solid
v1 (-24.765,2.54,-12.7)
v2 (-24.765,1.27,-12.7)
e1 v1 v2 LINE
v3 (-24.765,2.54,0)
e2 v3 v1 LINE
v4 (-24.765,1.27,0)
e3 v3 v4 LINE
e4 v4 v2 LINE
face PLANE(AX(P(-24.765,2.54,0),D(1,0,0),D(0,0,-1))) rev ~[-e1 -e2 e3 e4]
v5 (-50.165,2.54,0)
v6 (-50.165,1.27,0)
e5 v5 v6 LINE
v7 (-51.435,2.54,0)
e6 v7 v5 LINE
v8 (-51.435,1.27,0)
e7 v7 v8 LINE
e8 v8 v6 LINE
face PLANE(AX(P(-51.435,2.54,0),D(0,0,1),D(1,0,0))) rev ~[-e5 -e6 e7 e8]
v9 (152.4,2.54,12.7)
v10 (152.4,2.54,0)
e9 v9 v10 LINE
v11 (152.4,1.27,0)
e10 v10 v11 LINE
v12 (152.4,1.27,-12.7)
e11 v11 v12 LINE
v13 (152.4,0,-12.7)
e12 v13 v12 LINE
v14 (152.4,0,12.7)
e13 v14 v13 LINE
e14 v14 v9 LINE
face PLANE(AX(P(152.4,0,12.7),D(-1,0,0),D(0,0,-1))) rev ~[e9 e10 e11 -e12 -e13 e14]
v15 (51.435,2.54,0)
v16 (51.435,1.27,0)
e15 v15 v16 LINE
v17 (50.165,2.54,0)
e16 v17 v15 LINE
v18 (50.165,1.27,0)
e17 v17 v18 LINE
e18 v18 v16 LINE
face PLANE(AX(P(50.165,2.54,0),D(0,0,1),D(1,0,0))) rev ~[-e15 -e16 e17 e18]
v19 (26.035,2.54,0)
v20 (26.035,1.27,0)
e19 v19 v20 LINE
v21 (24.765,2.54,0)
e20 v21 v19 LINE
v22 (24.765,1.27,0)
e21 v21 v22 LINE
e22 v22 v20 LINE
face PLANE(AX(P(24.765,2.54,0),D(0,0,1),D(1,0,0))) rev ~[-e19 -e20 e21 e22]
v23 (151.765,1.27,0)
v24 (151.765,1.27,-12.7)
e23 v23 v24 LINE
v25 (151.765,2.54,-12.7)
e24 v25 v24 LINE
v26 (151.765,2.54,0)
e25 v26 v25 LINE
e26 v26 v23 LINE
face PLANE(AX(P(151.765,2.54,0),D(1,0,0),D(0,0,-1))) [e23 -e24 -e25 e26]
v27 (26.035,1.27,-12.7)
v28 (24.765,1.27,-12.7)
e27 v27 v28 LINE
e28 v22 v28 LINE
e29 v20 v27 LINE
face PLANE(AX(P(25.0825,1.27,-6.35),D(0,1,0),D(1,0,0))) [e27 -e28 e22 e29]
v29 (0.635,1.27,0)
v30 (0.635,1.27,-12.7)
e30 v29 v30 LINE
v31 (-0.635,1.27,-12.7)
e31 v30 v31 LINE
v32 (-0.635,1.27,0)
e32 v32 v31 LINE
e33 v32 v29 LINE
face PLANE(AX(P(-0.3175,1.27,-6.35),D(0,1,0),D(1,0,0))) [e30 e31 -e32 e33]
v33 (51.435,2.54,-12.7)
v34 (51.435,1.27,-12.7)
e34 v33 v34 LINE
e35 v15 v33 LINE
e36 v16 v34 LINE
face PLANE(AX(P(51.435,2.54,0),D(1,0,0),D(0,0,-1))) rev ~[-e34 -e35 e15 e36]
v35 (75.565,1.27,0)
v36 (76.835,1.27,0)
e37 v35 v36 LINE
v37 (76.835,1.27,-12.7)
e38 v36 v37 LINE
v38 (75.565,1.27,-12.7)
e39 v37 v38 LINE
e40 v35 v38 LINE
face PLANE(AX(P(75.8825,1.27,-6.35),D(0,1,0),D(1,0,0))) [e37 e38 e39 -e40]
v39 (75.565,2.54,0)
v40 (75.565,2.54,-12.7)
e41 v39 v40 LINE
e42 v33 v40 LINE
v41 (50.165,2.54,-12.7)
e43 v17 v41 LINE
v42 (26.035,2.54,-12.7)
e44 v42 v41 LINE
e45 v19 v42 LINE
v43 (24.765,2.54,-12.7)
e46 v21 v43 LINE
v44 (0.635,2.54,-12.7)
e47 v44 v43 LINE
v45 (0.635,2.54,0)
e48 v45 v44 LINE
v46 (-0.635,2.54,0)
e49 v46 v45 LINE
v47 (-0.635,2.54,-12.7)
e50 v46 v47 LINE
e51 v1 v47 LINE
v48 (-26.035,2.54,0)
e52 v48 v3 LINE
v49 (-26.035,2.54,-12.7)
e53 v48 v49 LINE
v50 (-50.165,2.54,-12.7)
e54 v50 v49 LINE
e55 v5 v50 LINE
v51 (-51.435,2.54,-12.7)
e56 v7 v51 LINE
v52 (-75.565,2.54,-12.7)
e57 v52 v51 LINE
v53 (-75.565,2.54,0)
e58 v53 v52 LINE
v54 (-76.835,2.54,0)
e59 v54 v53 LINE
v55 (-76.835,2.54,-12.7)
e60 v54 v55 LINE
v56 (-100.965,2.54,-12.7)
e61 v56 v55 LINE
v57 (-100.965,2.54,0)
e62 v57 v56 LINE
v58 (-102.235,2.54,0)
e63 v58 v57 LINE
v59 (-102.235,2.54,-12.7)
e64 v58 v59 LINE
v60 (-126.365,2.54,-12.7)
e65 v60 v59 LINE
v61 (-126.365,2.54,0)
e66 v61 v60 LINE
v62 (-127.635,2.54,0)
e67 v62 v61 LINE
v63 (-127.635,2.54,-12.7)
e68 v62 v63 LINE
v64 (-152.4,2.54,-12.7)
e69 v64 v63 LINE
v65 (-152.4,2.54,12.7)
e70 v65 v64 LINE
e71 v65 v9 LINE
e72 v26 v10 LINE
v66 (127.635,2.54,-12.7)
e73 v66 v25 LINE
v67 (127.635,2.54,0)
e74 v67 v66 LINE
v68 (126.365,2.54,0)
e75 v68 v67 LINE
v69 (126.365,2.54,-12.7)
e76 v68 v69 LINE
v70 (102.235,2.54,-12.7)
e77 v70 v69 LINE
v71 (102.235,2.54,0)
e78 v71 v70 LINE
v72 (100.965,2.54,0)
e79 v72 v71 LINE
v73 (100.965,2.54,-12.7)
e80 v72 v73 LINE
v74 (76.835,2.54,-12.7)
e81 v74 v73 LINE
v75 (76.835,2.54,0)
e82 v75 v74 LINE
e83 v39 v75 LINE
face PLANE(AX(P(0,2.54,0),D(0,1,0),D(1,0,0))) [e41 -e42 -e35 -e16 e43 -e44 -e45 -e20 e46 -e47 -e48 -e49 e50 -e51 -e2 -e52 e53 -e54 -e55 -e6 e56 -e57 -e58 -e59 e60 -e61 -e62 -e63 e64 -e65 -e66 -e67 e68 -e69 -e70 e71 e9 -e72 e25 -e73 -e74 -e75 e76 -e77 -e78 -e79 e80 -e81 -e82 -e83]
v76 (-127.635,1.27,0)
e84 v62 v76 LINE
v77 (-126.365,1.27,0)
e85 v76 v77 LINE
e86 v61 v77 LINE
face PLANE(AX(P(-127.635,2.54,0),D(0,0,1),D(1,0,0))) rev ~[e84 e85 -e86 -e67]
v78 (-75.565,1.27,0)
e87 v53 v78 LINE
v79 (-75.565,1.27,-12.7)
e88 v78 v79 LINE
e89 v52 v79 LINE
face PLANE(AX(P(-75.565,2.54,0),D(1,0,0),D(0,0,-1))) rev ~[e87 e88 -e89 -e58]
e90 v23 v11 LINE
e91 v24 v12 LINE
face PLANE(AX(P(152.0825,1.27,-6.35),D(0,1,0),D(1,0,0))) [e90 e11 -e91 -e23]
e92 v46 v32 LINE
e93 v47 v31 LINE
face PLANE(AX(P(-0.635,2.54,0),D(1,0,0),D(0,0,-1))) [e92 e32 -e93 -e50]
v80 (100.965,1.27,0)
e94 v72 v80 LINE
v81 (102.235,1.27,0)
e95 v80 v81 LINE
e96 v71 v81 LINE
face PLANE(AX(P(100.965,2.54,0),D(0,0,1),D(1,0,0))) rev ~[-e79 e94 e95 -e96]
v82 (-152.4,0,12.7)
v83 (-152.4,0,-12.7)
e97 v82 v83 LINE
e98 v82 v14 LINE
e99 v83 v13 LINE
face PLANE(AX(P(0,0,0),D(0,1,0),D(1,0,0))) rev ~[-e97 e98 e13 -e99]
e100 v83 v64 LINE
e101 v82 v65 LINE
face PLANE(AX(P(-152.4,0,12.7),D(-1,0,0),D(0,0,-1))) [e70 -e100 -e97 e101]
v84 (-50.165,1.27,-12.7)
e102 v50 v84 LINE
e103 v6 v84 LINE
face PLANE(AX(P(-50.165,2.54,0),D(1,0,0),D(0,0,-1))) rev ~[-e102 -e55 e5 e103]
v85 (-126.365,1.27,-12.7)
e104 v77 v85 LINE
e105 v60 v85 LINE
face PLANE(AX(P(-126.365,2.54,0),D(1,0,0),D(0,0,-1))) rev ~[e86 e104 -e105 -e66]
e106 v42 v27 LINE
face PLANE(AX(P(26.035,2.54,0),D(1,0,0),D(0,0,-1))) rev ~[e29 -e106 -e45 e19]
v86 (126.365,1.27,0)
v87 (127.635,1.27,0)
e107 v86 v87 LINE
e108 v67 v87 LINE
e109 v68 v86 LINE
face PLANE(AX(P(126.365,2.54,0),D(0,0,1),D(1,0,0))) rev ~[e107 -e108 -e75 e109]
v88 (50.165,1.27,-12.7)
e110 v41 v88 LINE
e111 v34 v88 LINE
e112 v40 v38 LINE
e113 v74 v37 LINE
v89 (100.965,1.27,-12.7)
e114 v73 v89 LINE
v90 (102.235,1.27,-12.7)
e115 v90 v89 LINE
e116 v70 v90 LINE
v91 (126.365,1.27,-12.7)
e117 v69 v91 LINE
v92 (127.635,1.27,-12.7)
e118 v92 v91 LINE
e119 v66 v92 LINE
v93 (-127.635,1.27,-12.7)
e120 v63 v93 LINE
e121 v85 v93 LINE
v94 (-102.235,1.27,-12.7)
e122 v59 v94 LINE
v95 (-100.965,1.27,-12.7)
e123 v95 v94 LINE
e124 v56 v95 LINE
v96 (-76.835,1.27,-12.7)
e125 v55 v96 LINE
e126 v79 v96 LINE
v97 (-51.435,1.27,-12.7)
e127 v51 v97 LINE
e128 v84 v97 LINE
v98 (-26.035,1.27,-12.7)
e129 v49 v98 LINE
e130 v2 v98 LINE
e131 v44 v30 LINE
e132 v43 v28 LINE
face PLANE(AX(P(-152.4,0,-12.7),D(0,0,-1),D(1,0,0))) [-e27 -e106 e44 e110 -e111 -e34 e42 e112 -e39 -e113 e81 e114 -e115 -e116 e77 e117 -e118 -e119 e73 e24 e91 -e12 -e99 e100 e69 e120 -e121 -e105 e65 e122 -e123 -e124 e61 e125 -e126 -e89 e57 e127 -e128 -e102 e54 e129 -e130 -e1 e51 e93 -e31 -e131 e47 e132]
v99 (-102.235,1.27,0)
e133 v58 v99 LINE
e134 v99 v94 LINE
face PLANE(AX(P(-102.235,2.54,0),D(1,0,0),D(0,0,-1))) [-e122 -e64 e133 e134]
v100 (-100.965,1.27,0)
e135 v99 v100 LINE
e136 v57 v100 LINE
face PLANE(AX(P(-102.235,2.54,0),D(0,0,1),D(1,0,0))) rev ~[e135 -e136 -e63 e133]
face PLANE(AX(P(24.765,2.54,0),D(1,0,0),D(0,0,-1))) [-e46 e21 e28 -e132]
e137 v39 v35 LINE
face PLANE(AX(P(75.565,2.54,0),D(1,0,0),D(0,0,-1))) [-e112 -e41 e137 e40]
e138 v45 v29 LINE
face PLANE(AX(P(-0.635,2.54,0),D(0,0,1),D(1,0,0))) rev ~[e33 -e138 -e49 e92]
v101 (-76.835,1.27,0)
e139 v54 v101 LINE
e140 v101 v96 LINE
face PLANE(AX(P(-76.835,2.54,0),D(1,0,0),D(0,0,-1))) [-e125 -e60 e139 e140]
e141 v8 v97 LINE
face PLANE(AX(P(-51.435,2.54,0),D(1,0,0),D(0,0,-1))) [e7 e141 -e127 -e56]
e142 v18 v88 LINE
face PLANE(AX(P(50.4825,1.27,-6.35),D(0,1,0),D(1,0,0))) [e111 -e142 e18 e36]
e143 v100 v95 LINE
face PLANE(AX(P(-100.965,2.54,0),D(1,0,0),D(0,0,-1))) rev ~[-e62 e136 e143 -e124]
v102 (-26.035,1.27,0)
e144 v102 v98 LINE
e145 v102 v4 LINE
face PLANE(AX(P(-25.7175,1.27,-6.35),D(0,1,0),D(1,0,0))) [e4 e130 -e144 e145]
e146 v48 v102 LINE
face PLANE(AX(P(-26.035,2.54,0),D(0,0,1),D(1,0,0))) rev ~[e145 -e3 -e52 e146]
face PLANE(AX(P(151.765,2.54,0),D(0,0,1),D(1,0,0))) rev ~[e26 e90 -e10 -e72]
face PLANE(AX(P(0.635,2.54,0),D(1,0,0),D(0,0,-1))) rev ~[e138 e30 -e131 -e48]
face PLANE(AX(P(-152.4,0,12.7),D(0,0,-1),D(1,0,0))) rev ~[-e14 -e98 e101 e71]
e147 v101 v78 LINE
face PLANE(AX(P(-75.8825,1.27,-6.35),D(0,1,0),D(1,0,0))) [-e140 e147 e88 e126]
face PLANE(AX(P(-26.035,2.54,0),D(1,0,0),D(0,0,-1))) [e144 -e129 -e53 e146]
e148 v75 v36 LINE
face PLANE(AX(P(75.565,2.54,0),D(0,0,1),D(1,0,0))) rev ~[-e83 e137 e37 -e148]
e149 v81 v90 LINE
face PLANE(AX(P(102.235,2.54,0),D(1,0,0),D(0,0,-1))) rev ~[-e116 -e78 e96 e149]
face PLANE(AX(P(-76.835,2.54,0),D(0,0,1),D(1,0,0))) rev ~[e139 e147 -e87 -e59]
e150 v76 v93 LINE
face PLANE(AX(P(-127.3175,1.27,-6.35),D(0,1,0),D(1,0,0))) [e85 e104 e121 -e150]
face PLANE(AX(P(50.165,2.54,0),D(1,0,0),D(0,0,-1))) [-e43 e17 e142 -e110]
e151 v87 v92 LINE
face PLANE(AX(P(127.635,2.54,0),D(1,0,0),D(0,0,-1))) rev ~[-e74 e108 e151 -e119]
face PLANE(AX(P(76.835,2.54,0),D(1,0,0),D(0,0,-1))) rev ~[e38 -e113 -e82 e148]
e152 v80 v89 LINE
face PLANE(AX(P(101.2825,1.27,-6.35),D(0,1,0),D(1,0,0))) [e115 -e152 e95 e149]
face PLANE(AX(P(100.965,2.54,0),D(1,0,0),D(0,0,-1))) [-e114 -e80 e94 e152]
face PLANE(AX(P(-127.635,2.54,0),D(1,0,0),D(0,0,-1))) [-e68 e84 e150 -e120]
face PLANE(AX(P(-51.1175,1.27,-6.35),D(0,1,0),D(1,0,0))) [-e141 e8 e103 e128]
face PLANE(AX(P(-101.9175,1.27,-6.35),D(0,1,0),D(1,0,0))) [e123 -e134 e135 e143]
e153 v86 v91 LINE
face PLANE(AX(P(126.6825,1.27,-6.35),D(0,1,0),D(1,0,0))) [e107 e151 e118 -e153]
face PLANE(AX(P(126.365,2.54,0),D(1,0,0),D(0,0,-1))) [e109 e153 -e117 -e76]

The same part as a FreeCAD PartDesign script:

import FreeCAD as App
import Part
import Sketcher
from FreeCAD import Vector
Q = App.Units.Quantity

doc = App.newDocument("Part")
params = doc.addObject("Spreadsheet::Sheet", "Params")
for row, (alias, value) in enumerate([
    ("sketch1_width", "12 in"),
    ("sketch1_height", "1 in"),
    ("pad1_length", "0.1 in"),
    ("sketch2_height", "0.5 in"),
    ("sketch2_width", "0.05 in"),
    ("pocket1_length", "0.05 in"),
], start=1):
    params.set(f"A{row}", alias)
    params.set(f"B{row}", "=" + value)
    params.setAlias(f"B{row}", alias)

body = doc.addObject("PartDesign::Body", "Body")

# Sketch on XZ plane
sketch1 = body.newObject("Sketcher::SketchObject", "Sketch")
sketch1.AttachmentSupport = (doc.getObject("XZ_Plane"), [""])
sketch1.MapMode = "FlatFace"
sketch1.addGeometry([
    Part.LineSegment(Vector(-152, -13, 0), Vector(-152, 13, 0)),
    Part.LineSegment(Vector(-152, 13, 0), Vector(152, 13, 0)),
    Part.LineSegment(Vector(152, 13, 0), Vector(152, -13, 0)),
    Part.LineSegment(Vector(152, -13, 0), Vector(-152, -13, 0)),
], False)
sketch1.addConstraint([
    Sketcher.Constraint("Coincident", 0, 2, 1, 1),
    Sketcher.Constraint("Coincident", 1, 2, 2, 1),
    Sketcher.Constraint("Coincident", 2, 2, 3, 1),
    Sketcher.Constraint("Coincident", 3, 2, 0, 1),
    Sketcher.Constraint("Vertical", 0),
    Sketcher.Constraint("Horizontal", 1),
    Sketcher.Constraint("Vertical", 2),
    Sketcher.Constraint("Horizontal", 3),
    Sketcher.Constraint("Symmetric", 0, 2, 2, 2, -1, 1),
    Sketcher.Constraint("DistanceX", 1, 1, 1, 2, Q("12 in")),
    Sketcher.Constraint("DistanceY", 0, 1, 0, 2, Q("1 in")),
])
sketch1.setExpression("Constraints[9]", "Params.sketch1_width")
sketch1.setExpression("Constraints[10]", "Params.sketch1_height")
pad1 = body.newObject("PartDesign::Pad", "Pad")
pad1.Profile = sketch1
pad1.setExpression("Length", "Params.pad1_length")
pad1.Reversed = True

# Sketch on XZ plane
sketch2 = body.newObject("Sketcher::SketchObject", "Sketch001")
sketch2.AttachmentSupport = (doc.getObject("XZ_Plane"), [""])
sketch2.MapMode = "FlatFace"
sketch2.AttachmentOffset = App.Placement(Vector(0, 0, -0.1 * 25.4), App.Rotation())
sketch2.addGeometry([
    Part.LineSegment(Vector(-127.6, -12.7, 0), Vector(-127.6, 0, 0)),  # 0
    Part.LineSegment(Vector(-127.6, 0, 0), Vector(-126.4, 0, 0)),  # 1
    Part.LineSegment(Vector(-126.4, 0, 0), Vector(-126.4, -12.7, 0)),  # 2
    Part.LineSegment(Vector(-126.4, -12.7, 0), Vector(-127.6, -12.7, 0)),  # 3
    Part.LineSegment(Vector(-102.2, -12.7, 0), Vector(-102.2, 0, 0)),  # 4
    Part.LineSegment(Vector(-102.2, 0, 0), Vector(-101, 0, 0)),  # 5
    Part.LineSegment(Vector(-101, 0, 0), Vector(-101, -12.7, 0)),  # 6
    Part.LineSegment(Vector(-101, -12.7, 0), Vector(-102.2, -12.7, 0)),  # 7
    Part.LineSegment(Vector(-75.6, 0, 0), Vector(-75.6, -12.7, 0)),  # 8
    Part.LineSegment(Vector(-75.6, -12.7, 0), Vector(-76.8, -12.7, 0)),  # 9
    Part.LineSegment(Vector(-76.8, -12.7, 0), Vector(-76.8, 0, 0)),  # 10
    Part.LineSegment(Vector(-76.8, 0, 0), Vector(-75.6, 0, 0)),  # 11
    Part.LineSegment(Vector(-51.4, -12.7, 0), Vector(-51.4, 0, 0)),  # 12
    Part.LineSegment(Vector(-51.4, 0, 0), Vector(-50.2, 0, 0)),  # 13
    Part.LineSegment(Vector(-50.2, 0, 0), Vector(-50.2, -12.7, 0)),  # 14
    Part.LineSegment(Vector(-50.2, -12.7, 0), Vector(-51.4, -12.7, 0)),  # 15
    Part.LineSegment(Vector(-26, -12.7, 0), Vector(-26, 0, 0)),  # 16
    Part.LineSegment(Vector(-26, 0, 0), Vector(-24.8, 0, 0)),  # 17
    Part.LineSegment(Vector(-24.8, 0, 0), Vector(-24.8, -12.7, 0)),  # 18
    Part.LineSegment(Vector(-24.8, -12.7, 0), Vector(-26, -12.7, 0)),  # 19
    Part.LineSegment(Vector(-0.6, -12.7, 0), Vector(-0.6, 0, 0)),  # 20
    Part.LineSegment(Vector(-0.6, 0, 0), Vector(0.6, 0, 0)),  # 21
    Part.LineSegment(Vector(0.6, 0, 0), Vector(0.6, -12.7, 0)),  # 22
    Part.LineSegment(Vector(0.6, -12.7, 0), Vector(-0.6, -12.7, 0)),  # 23
    Part.LineSegment(Vector(24.8, -12.7, 0), Vector(24.8, 0, 0)),  # 24
    Part.LineSegment(Vector(24.8, 0, 0), Vector(26, 0, 0)),  # 25
    Part.LineSegment(Vector(26, 0, 0), Vector(26, -12.7, 0)),  # 26
    Part.LineSegment(Vector(26, -12.7, 0), Vector(24.8, -12.7, 0)),  # 27
    Part.LineSegment(Vector(50.2, -12.7, 0), Vector(50.2, 0, 0)),  # 28
    Part.LineSegment(Vector(50.2, 0, 0), Vector(51.4, 0, 0)),  # 29
    Part.LineSegment(Vector(51.4, 0, 0), Vector(51.4, -12.7, 0)),  # 30
    Part.LineSegment(Vector(51.4, -12.7, 0), Vector(50.2, -12.7, 0)),  # 31
    Part.LineSegment(Vector(75.6, -12.7, 0), Vector(75.6, 0, 0)),  # 32
    Part.LineSegment(Vector(75.6, 0, 0), Vector(76.8, 0, 0)),  # 33
    Part.LineSegment(Vector(76.8, 0, 0), Vector(76.8, -12.7, 0)),  # 34
    Part.LineSegment(Vector(76.8, -12.7, 0), Vector(75.6, -12.7, 0)),  # 35
    Part.LineSegment(Vector(101, -12.7, 0), Vector(101, 0, 0)),  # 36
    Part.LineSegment(Vector(101, 0, 0), Vector(102.2, 0, 0)),  # 37
    Part.LineSegment(Vector(102.2, 0, 0), Vector(102.2, -12.7, 0)),  # 38
    Part.LineSegment(Vector(102.2, -12.7, 0), Vector(101, -12.7, 0)),  # 39
    Part.LineSegment(Vector(126.4, -12.7, 0), Vector(126.4, 0, 0)),  # 40
    Part.LineSegment(Vector(126.4, 0, 0), Vector(127.6, 0, 0)),  # 41
    Part.LineSegment(Vector(127.6, 0, 0), Vector(127.6, -12.7, 0)),  # 42
    Part.LineSegment(Vector(127.6, -12.7, 0), Vector(126.4, -12.7, 0)),  # 43
    Part.LineSegment(Vector(151.8, -12.7, 0), Vector(151.8, 0, 0)),  # 44
    Part.LineSegment(Vector(151.8, 0, 0), Vector(152.4, 0, 0)),  # 45
    Part.LineSegment(Vector(152.4, 0, 0), Vector(152.4, -12.7, 0)),  # 46
    Part.LineSegment(Vector(152.4, -12.7, 0), Vector(151.8, -12.7, 0)),  # 47
], False)
sketch2.addConstraint([
    Sketcher.Constraint("Coincident", 0, 2, 1, 1),
    Sketcher.Constraint("Coincident", 1, 2, 2, 1),
    Sketcher.Constraint("Coincident", 2, 2, 3, 1),
    Sketcher.Constraint("Coincident", 3, 2, 0, 1),
    Sketcher.Constraint("Coincident", 4, 2, 5, 1),
    Sketcher.Constraint("Coincident", 5, 2, 6, 1),
    Sketcher.Constraint("Coincident", 6, 2, 7, 1),
    Sketcher.Constraint("Coincident", 7, 2, 4, 1),
    Sketcher.Constraint("Coincident", 8, 2, 9, 1),
    Sketcher.Constraint("Coincident", 9, 2, 10, 1),
    Sketcher.Constraint("Coincident", 10, 2, 11, 1),
    Sketcher.Constraint("Coincident", 11, 2, 8, 1),
    Sketcher.Constraint("Coincident", 12, 2, 13, 1),
    Sketcher.Constraint("Coincident", 13, 2, 14, 1),
    Sketcher.Constraint("Coincident", 14, 2, 15, 1),
    Sketcher.Constraint("Coincident", 15, 2, 12, 1),
    Sketcher.Constraint("Coincident", 16, 2, 17, 1),
    Sketcher.Constraint("Coincident", 17, 2, 18, 1),
    Sketcher.Constraint("Coincident", 18, 2, 19, 1),
    Sketcher.Constraint("Coincident", 19, 2, 16, 1),
    Sketcher.Constraint("Coincident", 20, 2, 21, 1),
    Sketcher.Constraint("Coincident", 21, 2, 22, 1),
    Sketcher.Constraint("Coincident", 22, 2, 23, 1),
    Sketcher.Constraint("Coincident", 23, 2, 20, 1),
    Sketcher.Constraint("Coincident", 24, 2, 25, 1),
    Sketcher.Constraint("Coincident", 25, 2, 26, 1),
    Sketcher.Constraint("Coincident", 26, 2, 27, 1),
    Sketcher.Constraint("Coincident", 27, 2, 24, 1),
    Sketcher.Constraint("Coincident", 28, 2, 29, 1),
    Sketcher.Constraint("Coincident", 29, 2, 30, 1),
    Sketcher.Constraint("Coincident", 30, 2, 31, 1),
    Sketcher.Constraint("Coincident", 31, 2, 28, 1),
    Sketcher.Constraint("Coincident", 32, 2, 33, 1),
    Sketcher.Constraint("Coincident", 33, 2, 34, 1),
    Sketcher.Constraint("Coincident", 34, 2, 35, 1),
    Sketcher.Constraint("Coincident", 35, 2, 32, 1),
    Sketcher.Constraint("Coincident", 36, 2, 37, 1),
    Sketcher.Constraint("Coincident", 37, 2, 38, 1),
    Sketcher.Constraint("Coincident", 38, 2, 39, 1),
    Sketcher.Constraint("Coincident", 39, 2, 36, 1),
    Sketcher.Constraint("Coincident", 40, 2, 41, 1),
    Sketcher.Constraint("Coincident", 41, 2, 42, 1),
    Sketcher.Constraint("Coincident", 42, 2, 43, 1),
    Sketcher.Constraint("Coincident", 43, 2, 40, 1),
    Sketcher.Constraint("Coincident", 44, 2, 45, 1),
    Sketcher.Constraint("Coincident", 45, 2, 46, 1),
    Sketcher.Constraint("Coincident", 46, 2, 47, 1),
    Sketcher.Constraint("Coincident", 47, 2, 44, 1),
    Sketcher.Constraint("Vertical", 0),
    Sketcher.Constraint("Horizontal", 1),
    Sketcher.Constraint("Vertical", 2),
    Sketcher.Constraint("Horizontal", 3),
    Sketcher.Constraint("Vertical", 4),
    Sketcher.Constraint("Horizontal", 5),
    Sketcher.Constraint("Vertical", 6),
    Sketcher.Constraint("Horizontal", 7),
    Sketcher.Constraint("Vertical", 8),
    Sketcher.Constraint("Horizontal", 9),
    Sketcher.Constraint("Vertical", 10),
    Sketcher.Constraint("Horizontal", 11),
    Sketcher.Constraint("Vertical", 12),
    Sketcher.Constraint("Horizontal", 13),
    Sketcher.Constraint("Vertical", 14),
    Sketcher.Constraint("Horizontal", 15),
    Sketcher.Constraint("Vertical", 16),
    Sketcher.Constraint("Horizontal", 17),
    Sketcher.Constraint("Vertical", 18),
    Sketcher.Constraint("Horizontal", 19),
    Sketcher.Constraint("Vertical", 20),
    Sketcher.Constraint("Horizontal", 21),
    Sketcher.Constraint("Vertical", 22),
    Sketcher.Constraint("Horizontal", 23),
    Sketcher.Constraint("Vertical", 24),
    Sketcher.Constraint("Horizontal", 25),
    Sketcher.Constraint("Vertical", 26),
    Sketcher.Constraint("Horizontal", 27),
    Sketcher.Constraint("Vertical", 28),
    Sketcher.Constraint("Horizontal", 29),
    Sketcher.Constraint("Vertical", 30),
    Sketcher.Constraint("Horizontal", 31),
    Sketcher.Constraint("Vertical", 32),
    Sketcher.Constraint("Horizontal", 33),
    Sketcher.Constraint("Vertical", 34),
    Sketcher.Constraint("Horizontal", 35),
    Sketcher.Constraint("Vertical", 36),
    Sketcher.Constraint("Horizontal", 37),
    Sketcher.Constraint("Vertical", 38),
    Sketcher.Constraint("Horizontal", 39),
    Sketcher.Constraint("Vertical", 40),
    Sketcher.Constraint("Horizontal", 41),
    Sketcher.Constraint("Vertical", 42),
    Sketcher.Constraint("Horizontal", 43),
    Sketcher.Constraint("Vertical", 44),
    Sketcher.Constraint("Horizontal", 45),
    Sketcher.Constraint("Vertical", 46),
    Sketcher.Constraint("Horizontal", 47),
    Sketcher.Constraint("Symmetric", 20, 2, 21, 2, -1, 1),
    Sketcher.Constraint("Symmetric", 17, 2, 24, 2, -1, 1),
    Sketcher.Constraint("Symmetric", 13, 2, 28, 2, -1, 1),
    Sketcher.Constraint("Symmetric", 11, 2, 32, 2, -1, 1),
    Sketcher.Constraint("Symmetric", 5, 2, 36, 2, -1, 1),
    Sketcher.Constraint("Symmetric", 1, 2, 40, 2, -1, 1),
    Sketcher.Constraint("Symmetric", 16, 2, 25, 2, -2),
    Sketcher.Constraint("Symmetric", 12, 2, 29, 2, -2),
    Sketcher.Constraint("Symmetric", 10, 2, 33, 2, -2),
    Sketcher.Constraint("Symmetric", 4, 2, 37, 2, -2),
    Sketcher.Constraint("Symmetric", 0, 2, 41, 2, -2),
    Sketcher.Constraint("PointOnObject", 44, 2, -1),
    Sketcher.Constraint("Horizontal", 3, 2, 6, 2),
    Sketcher.Constraint("Horizontal", 7, 2, 8, 2),
    Sketcher.Constraint("Horizontal", 9, 2, 14, 2),
    Sketcher.Constraint("Horizontal", 15, 2, 18, 2),
    Sketcher.Constraint("Horizontal", 19, 2, 22, 2),
    Sketcher.Constraint("Horizontal", 23, 2, 26, 2),
    Sketcher.Constraint("Horizontal", 27, 2, 30, 2),
    Sketcher.Constraint("Horizontal", 31, 2, 34, 2),
    Sketcher.Constraint("Horizontal", 35, 2, 38, 2),
    Sketcher.Constraint("Horizontal", 39, 2, 42, 2),
    Sketcher.Constraint("Horizontal", 43, 2, 46, 2),
    Sketcher.Constraint("Equal", 3, 5),
    Sketcher.Constraint("Equal", 7, 9),
    Sketcher.Constraint("Equal", 11, 13),
    Sketcher.Constraint("Equal", 15, 17),
    Sketcher.Constraint("Equal", 19, 21),
    Sketcher.Constraint("DistanceY", 0, 1, 0, 2, Q("0.5 in")),
    Sketcher.Constraint("DistanceX", -1, 1, 45, 2, Q("6 in")),
    Sketcher.Constraint("DistanceX", 0, 2, 4, 2, Q("1 in")),
    Sketcher.Constraint("DistanceX", 6, 2, 8, 2, Q("1 in")),
    Sketcher.Constraint("DistanceX", 10, 2, 12, 2, Q("1 in")),
    Sketcher.Constraint("DistanceX", 12, 2, 16, 2, Q("1 in")),
    Sketcher.Constraint("DistanceX", 16, 2, 20, 2, Q("1 in")),
    Sketcher.Constraint("DistanceX", 40, 2, 44, 2, Q("1 in")),
    Sketcher.Constraint("DistanceX", 1, 1, 1, 2, Q("0.05 in")),
])
sketch2.setExpression("Constraints[124]", "Params.sketch2_height")
sketch2.setExpression("Constraints[132]", "Params.sketch2_width")
pocket1 = body.newObject("PartDesign::Pocket", "Pocket")
pocket1.Profile = sketch2
pocket1.setExpression("Length", "Params.pocket1_length")
pocket1.Reversed = True

doc.recompute()
